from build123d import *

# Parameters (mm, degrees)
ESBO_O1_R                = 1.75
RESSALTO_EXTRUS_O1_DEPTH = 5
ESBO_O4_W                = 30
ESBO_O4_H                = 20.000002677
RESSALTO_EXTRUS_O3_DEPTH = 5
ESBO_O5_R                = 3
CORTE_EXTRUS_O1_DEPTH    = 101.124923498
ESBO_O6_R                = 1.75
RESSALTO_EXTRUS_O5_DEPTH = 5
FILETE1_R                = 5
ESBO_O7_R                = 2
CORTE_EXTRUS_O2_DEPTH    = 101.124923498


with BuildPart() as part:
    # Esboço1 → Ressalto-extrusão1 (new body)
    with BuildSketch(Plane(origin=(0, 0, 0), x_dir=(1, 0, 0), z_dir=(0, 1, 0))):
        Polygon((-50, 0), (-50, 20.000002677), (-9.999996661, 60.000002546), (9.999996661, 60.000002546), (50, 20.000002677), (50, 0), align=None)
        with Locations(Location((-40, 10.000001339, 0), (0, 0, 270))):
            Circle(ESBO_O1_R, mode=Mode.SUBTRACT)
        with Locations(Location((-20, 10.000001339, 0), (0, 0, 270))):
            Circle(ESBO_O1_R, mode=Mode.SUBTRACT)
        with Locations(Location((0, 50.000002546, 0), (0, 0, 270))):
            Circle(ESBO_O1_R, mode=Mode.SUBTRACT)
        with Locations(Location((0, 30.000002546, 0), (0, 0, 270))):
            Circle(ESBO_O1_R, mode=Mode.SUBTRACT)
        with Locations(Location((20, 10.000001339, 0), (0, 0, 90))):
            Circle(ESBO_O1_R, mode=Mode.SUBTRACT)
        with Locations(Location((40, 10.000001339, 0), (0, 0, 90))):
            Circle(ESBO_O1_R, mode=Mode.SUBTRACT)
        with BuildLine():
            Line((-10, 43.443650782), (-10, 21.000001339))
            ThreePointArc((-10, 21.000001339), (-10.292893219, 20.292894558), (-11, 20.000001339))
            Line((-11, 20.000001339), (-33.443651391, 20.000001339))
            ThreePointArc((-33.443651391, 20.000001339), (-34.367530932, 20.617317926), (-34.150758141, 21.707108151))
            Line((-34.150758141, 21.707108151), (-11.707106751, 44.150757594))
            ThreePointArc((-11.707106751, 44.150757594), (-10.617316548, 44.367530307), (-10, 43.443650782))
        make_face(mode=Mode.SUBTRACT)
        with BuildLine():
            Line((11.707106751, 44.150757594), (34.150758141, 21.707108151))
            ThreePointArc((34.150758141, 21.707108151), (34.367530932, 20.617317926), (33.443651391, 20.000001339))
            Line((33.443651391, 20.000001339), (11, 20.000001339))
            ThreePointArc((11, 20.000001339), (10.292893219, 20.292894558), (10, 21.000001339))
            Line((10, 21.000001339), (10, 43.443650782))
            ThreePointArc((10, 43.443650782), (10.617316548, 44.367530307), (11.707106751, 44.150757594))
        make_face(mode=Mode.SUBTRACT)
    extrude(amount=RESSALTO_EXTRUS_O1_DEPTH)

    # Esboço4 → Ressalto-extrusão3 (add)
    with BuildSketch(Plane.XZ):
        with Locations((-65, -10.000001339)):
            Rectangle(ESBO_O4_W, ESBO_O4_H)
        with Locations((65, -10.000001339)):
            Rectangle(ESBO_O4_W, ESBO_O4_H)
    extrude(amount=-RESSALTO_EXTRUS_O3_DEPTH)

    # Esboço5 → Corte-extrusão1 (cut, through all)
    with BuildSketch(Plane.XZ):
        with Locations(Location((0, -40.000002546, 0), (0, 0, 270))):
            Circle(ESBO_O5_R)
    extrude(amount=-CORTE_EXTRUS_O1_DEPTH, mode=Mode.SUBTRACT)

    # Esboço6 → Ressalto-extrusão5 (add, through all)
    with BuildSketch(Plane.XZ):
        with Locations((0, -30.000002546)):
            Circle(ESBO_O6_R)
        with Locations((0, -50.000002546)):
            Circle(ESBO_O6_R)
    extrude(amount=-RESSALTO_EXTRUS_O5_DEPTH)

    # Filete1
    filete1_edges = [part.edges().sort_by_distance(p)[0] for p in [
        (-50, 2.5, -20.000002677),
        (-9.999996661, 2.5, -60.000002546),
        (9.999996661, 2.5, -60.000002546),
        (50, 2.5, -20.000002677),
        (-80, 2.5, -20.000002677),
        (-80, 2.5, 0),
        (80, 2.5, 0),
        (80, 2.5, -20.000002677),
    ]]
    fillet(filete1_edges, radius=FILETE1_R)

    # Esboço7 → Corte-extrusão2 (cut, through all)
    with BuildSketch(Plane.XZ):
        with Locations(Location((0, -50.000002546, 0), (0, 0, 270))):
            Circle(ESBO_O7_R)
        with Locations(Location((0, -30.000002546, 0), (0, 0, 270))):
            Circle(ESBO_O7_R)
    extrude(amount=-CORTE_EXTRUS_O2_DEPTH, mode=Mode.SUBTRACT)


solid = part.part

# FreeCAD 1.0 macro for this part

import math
import FreeCAD as App
import Part
import Sketcher

V = App.Vector
Q = App.Units.Quantity


def edges_at(feature, points):
    """Names of the edges that pass closest to the given points."""
    edges = feature.Shape.Edges
    near = lambda p: min(range(len(edges)), key=lambda i: edges[i].distToShape(Part.Vertex(*p))[0])
    return sorted({f"Edge{near(p) + 1}" for p in points})


def add_polygon(sketch, points):
    """Adds a closed chain of lines whose ends are joined by coincident constraints."""
    first, n = sketch.GeometryCount, len(points)
    for a, b in zip(points, points[1:] + points[:1]):
        sketch.addGeometry(Part.LineSegment(App.Vector(*a, 0), App.Vector(*b, 0)), False)
    for i in range(n):
        sketch.addConstraint(Sketcher.Constraint("Coincident", first + i, 2, first + (i + 1) % n, 1))

doc = App.newDocument("Part")
body = doc.addObject("PartDesign::Body", "Body")

# Sketch on XZ plane
sketch1 = body.newObject("Sketcher::SketchObject", "Sketch")
sketch1.AttachmentSupport = (doc.getObject("XZ_Plane"), [""])
sketch1.MapMode = "FlatFace"
add_polygon(sketch1, [(-50, -20), (-50, 0), (50, 0), (50, -20), (10, -60), (-10, -60)])  # lines 0-5
sketch1.addGeometry(Part.Circle(V(40, -10, 0), V(0, 0, 1), 1.8), False)  # 6
sketch1.addGeometry(Part.Circle(V(20, -10, 0), V(0, 0, 1), 1.8), False)  # 7
sketch1.addGeometry(Part.Circle(V(-20, -10, 0), V(0, 0, 1), 1.8), False)  # 8
sketch1.addGeometry(Part.Circle(V(-40, -10, 0), V(0, 0, 1), 1.8), False)  # 9
sketch1.addGeometry(Part.LineSegment(V(11.7, -44.2, 0), V(34.2, -21.7, 0)), False)  # 10
sketch1.addGeometry(Part.ArcOfCircle(Part.Circle(V(33.4, -21, 0), V(0, 0, 1), 1), math.radians(-45), math.radians(90)), False)  # 11
sketch1.addGeometry(Part.LineSegment(V(33.4, -20, 0), V(11, -20, 0)), False)  # 12
sketch1.addGeometry(Part.ArcOfCircle(Part.Circle(V(11, -21, 0), V(0, 0, 1), 1), math.radians(90), math.radians(180)), False)  # 13
sketch1.addGeometry(Part.LineSegment(V(10, -21, 0), V(10, -43.4, 0)), False)  # 14
sketch1.addGeometry(Part.ArcOfCircle(Part.Circle(V(11, -43.4, 0), V(0, 0, 1), 1), math.radians(180), math.radians(315)), False)  # 15
sketch1.addGeometry(Part.Circle(V(0, -30, 0), V(0, 0, 1), 1.8), False)  # 16
sketch1.addGeometry(Part.LineSegment(V(-10, -43.4, 0), V(-10, -21, 0)), False)  # 17
sketch1.addGeometry(Part.ArcOfCircle(Part.Circle(V(-11, -21, 0), V(0, 0, 1), 1), math.radians(0), math.radians(90)), False)  # 18
sketch1.addGeometry(Part.LineSegment(V(-11, -20, 0), V(-33.4, -20, 0)), False)  # 19
sketch1.addGeometry(Part.ArcOfCircle(Part.Circle(V(-33.4, -21, 0), V(0, 0, 1), 1), math.radians(90), math.radians(225)), False)  # 20
sketch1.addGeometry(Part.LineSegment(V(-34.2, -21.7, 0), V(-11.7, -44.2, 0)), False)  # 21
sketch1.addGeometry(Part.ArcOfCircle(Part.Circle(V(-11, -43.4, 0), V(0, 0, 1), 1), math.radians(-135), math.radians(0)), False)  # 22
sketch1.addGeometry(Part.Circle(V(0, -50, 0), V(0, 0, 1), 1.8), False)  # 23
sketch1.addConstraint(Sketcher.Constraint("Tangent", 10, 2, 11, 1))
sketch1.addConstraint(Sketcher.Constraint("Tangent", 11, 2, 12, 1))
sketch1.addConstraint(Sketcher.Constraint("Tangent", 12, 2, 13, 1))
sketch1.addConstraint(Sketcher.Constraint("Tangent", 13, 2, 14, 1))
sketch1.addConstraint(Sketcher.Constraint("Tangent", 14, 2, 15, 1))
sketch1.addConstraint(Sketcher.Constraint("Tangent", 15, 2, 10, 1))
sketch1.addConstraint(Sketcher.Constraint("Tangent", 17, 2, 18, 1))
sketch1.addConstraint(Sketcher.Constraint("Tangent", 18, 2, 19, 1))
sketch1.addConstraint(Sketcher.Constraint("Tangent", 19, 2, 20, 1))
sketch1.addConstraint(Sketcher.Constraint("Tangent", 20, 2, 21, 1))
sketch1.addConstraint(Sketcher.Constraint("Tangent", 21, 2, 22, 1))
sketch1.addConstraint(Sketcher.Constraint("Tangent", 22, 2, 17, 1))
sketch1.addConstraint(Sketcher.Constraint("Vertical", 0))
sketch1.addConstraint(Sketcher.Constraint("Horizontal", 1))
sketch1.addConstraint(Sketcher.Constraint("Vertical", 2))
sketch1.addConstraint(Sketcher.Constraint("Horizontal", 4))
sketch1.addConstraint(Sketcher.Constraint("Horizontal", 12))
sketch1.addConstraint(Sketcher.Constraint("Vertical", 14))
sketch1.addConstraint(Sketcher.Constraint("Vertical", 17))
sketch1.addConstraint(Sketcher.Constraint("Horizontal", 19))
sketch1.addConstraint(Sketcher.Constraint("Equal", 6, 7))
sketch1.addConstraint(Sketcher.Constraint("Equal", 7, 8))
sketch1.addConstraint(Sketcher.Constraint("Equal", 8, 9))
sketch1.addConstraint(Sketcher.Constraint("Equal", 11, 13))
sketch1.addConstraint(Sketcher.Constraint("Equal", 13, 15))
sketch1.addConstraint(Sketcher.Constraint("Equal", 9, 16))
sketch1.addConstraint(Sketcher.Constraint("Equal", 15, 18))
sketch1.addConstraint(Sketcher.Constraint("Equal", 18, 20))
sketch1.addConstraint(Sketcher.Constraint("Equal", 20, 22))
sketch1.addConstraint(Sketcher.Constraint("Equal", 16, 23))
sketch1.addConstraint(Sketcher.Constraint("Symmetric", 0, 2, 1, 2, -1, 1))
sketch1.addConstraint(Sketcher.Constraint("Symmetric", 7, 3, 8, 3, -2))
sketch1.addConstraint(Sketcher.Constraint("Symmetric", 6, 3, 9, 3, -2))
sketch1.addConstraint(Sketcher.Constraint("Symmetric", 13, 3, 18, 3, -2))
sketch1.addConstraint(Sketcher.Constraint("Symmetric", 10, 2, 20, 2, -2))
sketch1.addConstraint(Sketcher.Constraint("PointOnObject", 16, 3, -2))
sketch1.addConstraint(Sketcher.Constraint("PointOnObject", 23, 3, -2))
sketch1.addConstraint(Sketcher.Constraint("Perpendicular", 3, 5))
sketch1.addConstraint(Sketcher.Constraint("Perpendicular", 5, 10))
sketch1.addConstraint(Sketcher.Constraint("Perpendicular", 10, 21))
sketch1.addConstraint(Sketcher.Constraint("Horizontal", 6, 3, 7, 3))
sketch1.addConstraint(Sketcher.Constraint("Horizontal", 2, 2, 5, 2))
sketch1.addConstraint(Sketcher.Constraint("Horizontal", 5, 2, 11, 2))
sketch1.addConstraint(Sketcher.Constraint("Radius", 11, Q("1 mm")))
sketch1.addConstraint(Sketcher.Constraint("Diameter", 6, Q("3.5 mm")))
sketch1.addConstraint(Sketcher.Constraint("DistanceX", 1, 1, 1, 2, Q("100 mm")))
sketch1.addConstraint(Sketcher.Constraint("DistanceX", -1, 1, 6, 3, Q("40 mm")))
sketch1.addConstraint(Sketcher.Constraint("DistanceY", 6, 3, -1, 1, Q("10.000001 mm")))
sketch1.addConstraint(Sketcher.Constraint("DistanceX", -1, 1, 7, 3, Q("20 mm")))
sketch1.addConstraint(Sketcher.Constraint("DistanceY", 11, 3, -1, 1, Q("21.000001 mm")))
sketch1.addConstraint(Sketcher.Constraint("DistanceX", -1, 1, 13, 3, Q("11 mm")))
sketch1.addConstraint(Sketcher.Constraint("DistanceY", 16, 3, 13, 3, Q("9.000001 mm")))
sketch1.addConstraint(Sketcher.Constraint("DistanceY", 23, 3, 16, 3, Q("20 mm")))
sketch1.addConstraint(Sketcher.Constraint("DistanceY", 3, 2, 23, 3, Q("10 mm")))
sketch1.addConstraint(Sketcher.Constraint("DistanceX", 12, 2, 12, 1, Q("22.443651 mm")))
pad1 = body.newObject("PartDesign::Pad", "Pad")
pad1.Profile = sketch1
pad1.Length = 5
pad1.Reversed = True

# Sketch on XZ plane
sketch2 = body.newObject("Sketcher::SketchObject", "Sketch001")
sketch2.AttachmentSupport = (doc.getObject("XZ_Plane"), [""])
sketch2.MapMode = "FlatFace"
add_polygon(sketch2, [(-80, 0), (-80, -20), (-50, -20), (-50, 0)])  # lines 0-3
add_polygon(sketch2, [(50, 0), (50, -20), (80, -20), (80, 0)])  # lines 4-7
sketch2.addConstraint(Sketcher.Constraint("Vertical", 0))
sketch2.addConstraint(Sketcher.Constraint("Horizontal", 1))
sketch2.addConstraint(Sketcher.Constraint("Vertical", 2))
sketch2.addConstraint(Sketcher.Constraint("Horizontal", 3))
sketch2.addConstraint(Sketcher.Constraint("Vertical", 4))
sketch2.addConstraint(Sketcher.Constraint("Horizontal", 5))
sketch2.addConstraint(Sketcher.Constraint("Vertical", 6))
sketch2.addConstraint(Sketcher.Constraint("Horizontal", 7))
sketch2.addConstraint(Sketcher.Constraint("Symmetric", 3, 2, 6, 2, -1, 1))
sketch2.addConstraint(Sketcher.Constraint("Symmetric", 1, 2, 4, 2, -2))
sketch2.addConstraint(Sketcher.Constraint("PointOnObject", 2, 2, -1))
sketch2.addConstraint(Sketcher.Constraint("DistanceX", 1, 1, 1, 2, Q("30 mm")))
sketch2.addConstraint(Sketcher.Constraint("DistanceX", 0, 2, -1, 1, Q("80 mm")))
sketch2.addConstraint(Sketcher.Constraint("DistanceY", 0, 2, 0, 1, Q("20.000003 mm")))
pad2 = body.newObject("PartDesign::Pad", "Pad001")
pad2.Profile = sketch2
pad2.Length = 5
pad2.Reversed = True

# Sketch on XZ plane
sketch3 = body.newObject("Sketcher::SketchObject", "Sketch002")
sketch3.AttachmentSupport = (doc.getObject("XZ_Plane"), [""])
sketch3.MapMode = "FlatFace"
sketch3.addGeometry(Part.Circle(V(0, -40, 0), V(0, 0, 1), 3), False)
sketch3.addConstraint(Sketcher.Constraint("PointOnObject", 0, 3, -2))
sketch3.addConstraint(Sketcher.Constraint("Diameter", 0, Q("6 mm")))
sketch3.addConstraint(Sketcher.Constraint("DistanceY", 0, 3, -1, 1, Q("40.000003 mm")))
pocket1 = body.newObject("PartDesign::Pocket", "Pocket")
pocket1.Profile = sketch3
pocket1.Type = "ThroughAll"

# Sketch on XZ plane
sketch4 = body.newObject("Sketcher::SketchObject", "Sketch003")
sketch4.AttachmentSupport = (doc.getObject("XZ_Plane"), [""])
sketch4.MapMode = "FlatFace"
sketch4.addGeometry(Part.Circle(V(0, -30, 0), V(0, 0, 1), 1.8), False)
sketch4.addGeometry(Part.Circle(V(0, -50, 0), V(0, 0, 1), 1.8), False)
sketch4.addConstraint(Sketcher.Constraint("Equal", 0, 1))
sketch4.addConstraint(Sketcher.Constraint("PointOnObject", 0, 3, -2))
sketch4.addConstraint(Sketcher.Constraint("PointOnObject", 1, 3, -2))
sketch4.addConstraint(Sketcher.Constraint("Diameter", 0, Q("3.5 mm")))
sketch4.addConstraint(Sketcher.Constraint("DistanceY", 1, 3, 0, 3, Q("20 mm")))
sketch4.addConstraint(Sketcher.Constraint("DistanceY", 0, 3, -1, 1, Q("30.000003 mm")))
pad3 = body.newObject("PartDesign::Pad", "Pad002")
pad3.Profile = sketch4
pad3.Length = 5
pad3.Reversed = True
doc.recompute()

fillet = body.newObject("PartDesign::Fillet", "Fillet")
fillet.Base = (pad3, edges_at(pad3, [
    (-50, 2.5, -20),
    (-10, 2.5, -60),
    (10, 2.5, -60),
    (50, 2.5, -20),
    (-80, 2.5, -20),
    (-80, 2.5, 0),
    (80, 2.5, 0),
    (80, 2.5, -20),
]))
fillet.Radius = 5

# Sketch on XZ plane
sketch5 = body.newObject("Sketcher::SketchObject", "Sketch004")
sketch5.AttachmentSupport = (doc.getObject("XZ_Plane"), [""])
sketch5.MapMode = "FlatFace"
sketch5.addGeometry(Part.Circle(V(0, -50, 0), V(0, 0, 1), 2), False)
sketch5.addGeometry(Part.Circle(V(0, -30, 0), V(0, 0, 1), 2), False)
sketch5.addConstraint(Sketcher.Constraint("Equal", 0, 1))
sketch5.addConstraint(Sketcher.Constraint("PointOnObject", 0, 3, -2))
sketch5.addConstraint(Sketcher.Constraint("PointOnObject", 1, 3, -2))
sketch5.addConstraint(Sketcher.Constraint("Diameter", 0, Q("4 mm")))
sketch5.addConstraint(Sketcher.Constraint("DistanceY", 0, 3, 1, 3, Q("20 mm")))
sketch5.addConstraint(Sketcher.Constraint("DistanceY", 0, 3, -1, 1, Q("50.000003 mm")))
pocket2 = body.newObject("PartDesign::Pocket", "Pocket001")
pocket2.Profile = sketch5
pocket2.Type = "ThroughAll"

doc.recompute()
